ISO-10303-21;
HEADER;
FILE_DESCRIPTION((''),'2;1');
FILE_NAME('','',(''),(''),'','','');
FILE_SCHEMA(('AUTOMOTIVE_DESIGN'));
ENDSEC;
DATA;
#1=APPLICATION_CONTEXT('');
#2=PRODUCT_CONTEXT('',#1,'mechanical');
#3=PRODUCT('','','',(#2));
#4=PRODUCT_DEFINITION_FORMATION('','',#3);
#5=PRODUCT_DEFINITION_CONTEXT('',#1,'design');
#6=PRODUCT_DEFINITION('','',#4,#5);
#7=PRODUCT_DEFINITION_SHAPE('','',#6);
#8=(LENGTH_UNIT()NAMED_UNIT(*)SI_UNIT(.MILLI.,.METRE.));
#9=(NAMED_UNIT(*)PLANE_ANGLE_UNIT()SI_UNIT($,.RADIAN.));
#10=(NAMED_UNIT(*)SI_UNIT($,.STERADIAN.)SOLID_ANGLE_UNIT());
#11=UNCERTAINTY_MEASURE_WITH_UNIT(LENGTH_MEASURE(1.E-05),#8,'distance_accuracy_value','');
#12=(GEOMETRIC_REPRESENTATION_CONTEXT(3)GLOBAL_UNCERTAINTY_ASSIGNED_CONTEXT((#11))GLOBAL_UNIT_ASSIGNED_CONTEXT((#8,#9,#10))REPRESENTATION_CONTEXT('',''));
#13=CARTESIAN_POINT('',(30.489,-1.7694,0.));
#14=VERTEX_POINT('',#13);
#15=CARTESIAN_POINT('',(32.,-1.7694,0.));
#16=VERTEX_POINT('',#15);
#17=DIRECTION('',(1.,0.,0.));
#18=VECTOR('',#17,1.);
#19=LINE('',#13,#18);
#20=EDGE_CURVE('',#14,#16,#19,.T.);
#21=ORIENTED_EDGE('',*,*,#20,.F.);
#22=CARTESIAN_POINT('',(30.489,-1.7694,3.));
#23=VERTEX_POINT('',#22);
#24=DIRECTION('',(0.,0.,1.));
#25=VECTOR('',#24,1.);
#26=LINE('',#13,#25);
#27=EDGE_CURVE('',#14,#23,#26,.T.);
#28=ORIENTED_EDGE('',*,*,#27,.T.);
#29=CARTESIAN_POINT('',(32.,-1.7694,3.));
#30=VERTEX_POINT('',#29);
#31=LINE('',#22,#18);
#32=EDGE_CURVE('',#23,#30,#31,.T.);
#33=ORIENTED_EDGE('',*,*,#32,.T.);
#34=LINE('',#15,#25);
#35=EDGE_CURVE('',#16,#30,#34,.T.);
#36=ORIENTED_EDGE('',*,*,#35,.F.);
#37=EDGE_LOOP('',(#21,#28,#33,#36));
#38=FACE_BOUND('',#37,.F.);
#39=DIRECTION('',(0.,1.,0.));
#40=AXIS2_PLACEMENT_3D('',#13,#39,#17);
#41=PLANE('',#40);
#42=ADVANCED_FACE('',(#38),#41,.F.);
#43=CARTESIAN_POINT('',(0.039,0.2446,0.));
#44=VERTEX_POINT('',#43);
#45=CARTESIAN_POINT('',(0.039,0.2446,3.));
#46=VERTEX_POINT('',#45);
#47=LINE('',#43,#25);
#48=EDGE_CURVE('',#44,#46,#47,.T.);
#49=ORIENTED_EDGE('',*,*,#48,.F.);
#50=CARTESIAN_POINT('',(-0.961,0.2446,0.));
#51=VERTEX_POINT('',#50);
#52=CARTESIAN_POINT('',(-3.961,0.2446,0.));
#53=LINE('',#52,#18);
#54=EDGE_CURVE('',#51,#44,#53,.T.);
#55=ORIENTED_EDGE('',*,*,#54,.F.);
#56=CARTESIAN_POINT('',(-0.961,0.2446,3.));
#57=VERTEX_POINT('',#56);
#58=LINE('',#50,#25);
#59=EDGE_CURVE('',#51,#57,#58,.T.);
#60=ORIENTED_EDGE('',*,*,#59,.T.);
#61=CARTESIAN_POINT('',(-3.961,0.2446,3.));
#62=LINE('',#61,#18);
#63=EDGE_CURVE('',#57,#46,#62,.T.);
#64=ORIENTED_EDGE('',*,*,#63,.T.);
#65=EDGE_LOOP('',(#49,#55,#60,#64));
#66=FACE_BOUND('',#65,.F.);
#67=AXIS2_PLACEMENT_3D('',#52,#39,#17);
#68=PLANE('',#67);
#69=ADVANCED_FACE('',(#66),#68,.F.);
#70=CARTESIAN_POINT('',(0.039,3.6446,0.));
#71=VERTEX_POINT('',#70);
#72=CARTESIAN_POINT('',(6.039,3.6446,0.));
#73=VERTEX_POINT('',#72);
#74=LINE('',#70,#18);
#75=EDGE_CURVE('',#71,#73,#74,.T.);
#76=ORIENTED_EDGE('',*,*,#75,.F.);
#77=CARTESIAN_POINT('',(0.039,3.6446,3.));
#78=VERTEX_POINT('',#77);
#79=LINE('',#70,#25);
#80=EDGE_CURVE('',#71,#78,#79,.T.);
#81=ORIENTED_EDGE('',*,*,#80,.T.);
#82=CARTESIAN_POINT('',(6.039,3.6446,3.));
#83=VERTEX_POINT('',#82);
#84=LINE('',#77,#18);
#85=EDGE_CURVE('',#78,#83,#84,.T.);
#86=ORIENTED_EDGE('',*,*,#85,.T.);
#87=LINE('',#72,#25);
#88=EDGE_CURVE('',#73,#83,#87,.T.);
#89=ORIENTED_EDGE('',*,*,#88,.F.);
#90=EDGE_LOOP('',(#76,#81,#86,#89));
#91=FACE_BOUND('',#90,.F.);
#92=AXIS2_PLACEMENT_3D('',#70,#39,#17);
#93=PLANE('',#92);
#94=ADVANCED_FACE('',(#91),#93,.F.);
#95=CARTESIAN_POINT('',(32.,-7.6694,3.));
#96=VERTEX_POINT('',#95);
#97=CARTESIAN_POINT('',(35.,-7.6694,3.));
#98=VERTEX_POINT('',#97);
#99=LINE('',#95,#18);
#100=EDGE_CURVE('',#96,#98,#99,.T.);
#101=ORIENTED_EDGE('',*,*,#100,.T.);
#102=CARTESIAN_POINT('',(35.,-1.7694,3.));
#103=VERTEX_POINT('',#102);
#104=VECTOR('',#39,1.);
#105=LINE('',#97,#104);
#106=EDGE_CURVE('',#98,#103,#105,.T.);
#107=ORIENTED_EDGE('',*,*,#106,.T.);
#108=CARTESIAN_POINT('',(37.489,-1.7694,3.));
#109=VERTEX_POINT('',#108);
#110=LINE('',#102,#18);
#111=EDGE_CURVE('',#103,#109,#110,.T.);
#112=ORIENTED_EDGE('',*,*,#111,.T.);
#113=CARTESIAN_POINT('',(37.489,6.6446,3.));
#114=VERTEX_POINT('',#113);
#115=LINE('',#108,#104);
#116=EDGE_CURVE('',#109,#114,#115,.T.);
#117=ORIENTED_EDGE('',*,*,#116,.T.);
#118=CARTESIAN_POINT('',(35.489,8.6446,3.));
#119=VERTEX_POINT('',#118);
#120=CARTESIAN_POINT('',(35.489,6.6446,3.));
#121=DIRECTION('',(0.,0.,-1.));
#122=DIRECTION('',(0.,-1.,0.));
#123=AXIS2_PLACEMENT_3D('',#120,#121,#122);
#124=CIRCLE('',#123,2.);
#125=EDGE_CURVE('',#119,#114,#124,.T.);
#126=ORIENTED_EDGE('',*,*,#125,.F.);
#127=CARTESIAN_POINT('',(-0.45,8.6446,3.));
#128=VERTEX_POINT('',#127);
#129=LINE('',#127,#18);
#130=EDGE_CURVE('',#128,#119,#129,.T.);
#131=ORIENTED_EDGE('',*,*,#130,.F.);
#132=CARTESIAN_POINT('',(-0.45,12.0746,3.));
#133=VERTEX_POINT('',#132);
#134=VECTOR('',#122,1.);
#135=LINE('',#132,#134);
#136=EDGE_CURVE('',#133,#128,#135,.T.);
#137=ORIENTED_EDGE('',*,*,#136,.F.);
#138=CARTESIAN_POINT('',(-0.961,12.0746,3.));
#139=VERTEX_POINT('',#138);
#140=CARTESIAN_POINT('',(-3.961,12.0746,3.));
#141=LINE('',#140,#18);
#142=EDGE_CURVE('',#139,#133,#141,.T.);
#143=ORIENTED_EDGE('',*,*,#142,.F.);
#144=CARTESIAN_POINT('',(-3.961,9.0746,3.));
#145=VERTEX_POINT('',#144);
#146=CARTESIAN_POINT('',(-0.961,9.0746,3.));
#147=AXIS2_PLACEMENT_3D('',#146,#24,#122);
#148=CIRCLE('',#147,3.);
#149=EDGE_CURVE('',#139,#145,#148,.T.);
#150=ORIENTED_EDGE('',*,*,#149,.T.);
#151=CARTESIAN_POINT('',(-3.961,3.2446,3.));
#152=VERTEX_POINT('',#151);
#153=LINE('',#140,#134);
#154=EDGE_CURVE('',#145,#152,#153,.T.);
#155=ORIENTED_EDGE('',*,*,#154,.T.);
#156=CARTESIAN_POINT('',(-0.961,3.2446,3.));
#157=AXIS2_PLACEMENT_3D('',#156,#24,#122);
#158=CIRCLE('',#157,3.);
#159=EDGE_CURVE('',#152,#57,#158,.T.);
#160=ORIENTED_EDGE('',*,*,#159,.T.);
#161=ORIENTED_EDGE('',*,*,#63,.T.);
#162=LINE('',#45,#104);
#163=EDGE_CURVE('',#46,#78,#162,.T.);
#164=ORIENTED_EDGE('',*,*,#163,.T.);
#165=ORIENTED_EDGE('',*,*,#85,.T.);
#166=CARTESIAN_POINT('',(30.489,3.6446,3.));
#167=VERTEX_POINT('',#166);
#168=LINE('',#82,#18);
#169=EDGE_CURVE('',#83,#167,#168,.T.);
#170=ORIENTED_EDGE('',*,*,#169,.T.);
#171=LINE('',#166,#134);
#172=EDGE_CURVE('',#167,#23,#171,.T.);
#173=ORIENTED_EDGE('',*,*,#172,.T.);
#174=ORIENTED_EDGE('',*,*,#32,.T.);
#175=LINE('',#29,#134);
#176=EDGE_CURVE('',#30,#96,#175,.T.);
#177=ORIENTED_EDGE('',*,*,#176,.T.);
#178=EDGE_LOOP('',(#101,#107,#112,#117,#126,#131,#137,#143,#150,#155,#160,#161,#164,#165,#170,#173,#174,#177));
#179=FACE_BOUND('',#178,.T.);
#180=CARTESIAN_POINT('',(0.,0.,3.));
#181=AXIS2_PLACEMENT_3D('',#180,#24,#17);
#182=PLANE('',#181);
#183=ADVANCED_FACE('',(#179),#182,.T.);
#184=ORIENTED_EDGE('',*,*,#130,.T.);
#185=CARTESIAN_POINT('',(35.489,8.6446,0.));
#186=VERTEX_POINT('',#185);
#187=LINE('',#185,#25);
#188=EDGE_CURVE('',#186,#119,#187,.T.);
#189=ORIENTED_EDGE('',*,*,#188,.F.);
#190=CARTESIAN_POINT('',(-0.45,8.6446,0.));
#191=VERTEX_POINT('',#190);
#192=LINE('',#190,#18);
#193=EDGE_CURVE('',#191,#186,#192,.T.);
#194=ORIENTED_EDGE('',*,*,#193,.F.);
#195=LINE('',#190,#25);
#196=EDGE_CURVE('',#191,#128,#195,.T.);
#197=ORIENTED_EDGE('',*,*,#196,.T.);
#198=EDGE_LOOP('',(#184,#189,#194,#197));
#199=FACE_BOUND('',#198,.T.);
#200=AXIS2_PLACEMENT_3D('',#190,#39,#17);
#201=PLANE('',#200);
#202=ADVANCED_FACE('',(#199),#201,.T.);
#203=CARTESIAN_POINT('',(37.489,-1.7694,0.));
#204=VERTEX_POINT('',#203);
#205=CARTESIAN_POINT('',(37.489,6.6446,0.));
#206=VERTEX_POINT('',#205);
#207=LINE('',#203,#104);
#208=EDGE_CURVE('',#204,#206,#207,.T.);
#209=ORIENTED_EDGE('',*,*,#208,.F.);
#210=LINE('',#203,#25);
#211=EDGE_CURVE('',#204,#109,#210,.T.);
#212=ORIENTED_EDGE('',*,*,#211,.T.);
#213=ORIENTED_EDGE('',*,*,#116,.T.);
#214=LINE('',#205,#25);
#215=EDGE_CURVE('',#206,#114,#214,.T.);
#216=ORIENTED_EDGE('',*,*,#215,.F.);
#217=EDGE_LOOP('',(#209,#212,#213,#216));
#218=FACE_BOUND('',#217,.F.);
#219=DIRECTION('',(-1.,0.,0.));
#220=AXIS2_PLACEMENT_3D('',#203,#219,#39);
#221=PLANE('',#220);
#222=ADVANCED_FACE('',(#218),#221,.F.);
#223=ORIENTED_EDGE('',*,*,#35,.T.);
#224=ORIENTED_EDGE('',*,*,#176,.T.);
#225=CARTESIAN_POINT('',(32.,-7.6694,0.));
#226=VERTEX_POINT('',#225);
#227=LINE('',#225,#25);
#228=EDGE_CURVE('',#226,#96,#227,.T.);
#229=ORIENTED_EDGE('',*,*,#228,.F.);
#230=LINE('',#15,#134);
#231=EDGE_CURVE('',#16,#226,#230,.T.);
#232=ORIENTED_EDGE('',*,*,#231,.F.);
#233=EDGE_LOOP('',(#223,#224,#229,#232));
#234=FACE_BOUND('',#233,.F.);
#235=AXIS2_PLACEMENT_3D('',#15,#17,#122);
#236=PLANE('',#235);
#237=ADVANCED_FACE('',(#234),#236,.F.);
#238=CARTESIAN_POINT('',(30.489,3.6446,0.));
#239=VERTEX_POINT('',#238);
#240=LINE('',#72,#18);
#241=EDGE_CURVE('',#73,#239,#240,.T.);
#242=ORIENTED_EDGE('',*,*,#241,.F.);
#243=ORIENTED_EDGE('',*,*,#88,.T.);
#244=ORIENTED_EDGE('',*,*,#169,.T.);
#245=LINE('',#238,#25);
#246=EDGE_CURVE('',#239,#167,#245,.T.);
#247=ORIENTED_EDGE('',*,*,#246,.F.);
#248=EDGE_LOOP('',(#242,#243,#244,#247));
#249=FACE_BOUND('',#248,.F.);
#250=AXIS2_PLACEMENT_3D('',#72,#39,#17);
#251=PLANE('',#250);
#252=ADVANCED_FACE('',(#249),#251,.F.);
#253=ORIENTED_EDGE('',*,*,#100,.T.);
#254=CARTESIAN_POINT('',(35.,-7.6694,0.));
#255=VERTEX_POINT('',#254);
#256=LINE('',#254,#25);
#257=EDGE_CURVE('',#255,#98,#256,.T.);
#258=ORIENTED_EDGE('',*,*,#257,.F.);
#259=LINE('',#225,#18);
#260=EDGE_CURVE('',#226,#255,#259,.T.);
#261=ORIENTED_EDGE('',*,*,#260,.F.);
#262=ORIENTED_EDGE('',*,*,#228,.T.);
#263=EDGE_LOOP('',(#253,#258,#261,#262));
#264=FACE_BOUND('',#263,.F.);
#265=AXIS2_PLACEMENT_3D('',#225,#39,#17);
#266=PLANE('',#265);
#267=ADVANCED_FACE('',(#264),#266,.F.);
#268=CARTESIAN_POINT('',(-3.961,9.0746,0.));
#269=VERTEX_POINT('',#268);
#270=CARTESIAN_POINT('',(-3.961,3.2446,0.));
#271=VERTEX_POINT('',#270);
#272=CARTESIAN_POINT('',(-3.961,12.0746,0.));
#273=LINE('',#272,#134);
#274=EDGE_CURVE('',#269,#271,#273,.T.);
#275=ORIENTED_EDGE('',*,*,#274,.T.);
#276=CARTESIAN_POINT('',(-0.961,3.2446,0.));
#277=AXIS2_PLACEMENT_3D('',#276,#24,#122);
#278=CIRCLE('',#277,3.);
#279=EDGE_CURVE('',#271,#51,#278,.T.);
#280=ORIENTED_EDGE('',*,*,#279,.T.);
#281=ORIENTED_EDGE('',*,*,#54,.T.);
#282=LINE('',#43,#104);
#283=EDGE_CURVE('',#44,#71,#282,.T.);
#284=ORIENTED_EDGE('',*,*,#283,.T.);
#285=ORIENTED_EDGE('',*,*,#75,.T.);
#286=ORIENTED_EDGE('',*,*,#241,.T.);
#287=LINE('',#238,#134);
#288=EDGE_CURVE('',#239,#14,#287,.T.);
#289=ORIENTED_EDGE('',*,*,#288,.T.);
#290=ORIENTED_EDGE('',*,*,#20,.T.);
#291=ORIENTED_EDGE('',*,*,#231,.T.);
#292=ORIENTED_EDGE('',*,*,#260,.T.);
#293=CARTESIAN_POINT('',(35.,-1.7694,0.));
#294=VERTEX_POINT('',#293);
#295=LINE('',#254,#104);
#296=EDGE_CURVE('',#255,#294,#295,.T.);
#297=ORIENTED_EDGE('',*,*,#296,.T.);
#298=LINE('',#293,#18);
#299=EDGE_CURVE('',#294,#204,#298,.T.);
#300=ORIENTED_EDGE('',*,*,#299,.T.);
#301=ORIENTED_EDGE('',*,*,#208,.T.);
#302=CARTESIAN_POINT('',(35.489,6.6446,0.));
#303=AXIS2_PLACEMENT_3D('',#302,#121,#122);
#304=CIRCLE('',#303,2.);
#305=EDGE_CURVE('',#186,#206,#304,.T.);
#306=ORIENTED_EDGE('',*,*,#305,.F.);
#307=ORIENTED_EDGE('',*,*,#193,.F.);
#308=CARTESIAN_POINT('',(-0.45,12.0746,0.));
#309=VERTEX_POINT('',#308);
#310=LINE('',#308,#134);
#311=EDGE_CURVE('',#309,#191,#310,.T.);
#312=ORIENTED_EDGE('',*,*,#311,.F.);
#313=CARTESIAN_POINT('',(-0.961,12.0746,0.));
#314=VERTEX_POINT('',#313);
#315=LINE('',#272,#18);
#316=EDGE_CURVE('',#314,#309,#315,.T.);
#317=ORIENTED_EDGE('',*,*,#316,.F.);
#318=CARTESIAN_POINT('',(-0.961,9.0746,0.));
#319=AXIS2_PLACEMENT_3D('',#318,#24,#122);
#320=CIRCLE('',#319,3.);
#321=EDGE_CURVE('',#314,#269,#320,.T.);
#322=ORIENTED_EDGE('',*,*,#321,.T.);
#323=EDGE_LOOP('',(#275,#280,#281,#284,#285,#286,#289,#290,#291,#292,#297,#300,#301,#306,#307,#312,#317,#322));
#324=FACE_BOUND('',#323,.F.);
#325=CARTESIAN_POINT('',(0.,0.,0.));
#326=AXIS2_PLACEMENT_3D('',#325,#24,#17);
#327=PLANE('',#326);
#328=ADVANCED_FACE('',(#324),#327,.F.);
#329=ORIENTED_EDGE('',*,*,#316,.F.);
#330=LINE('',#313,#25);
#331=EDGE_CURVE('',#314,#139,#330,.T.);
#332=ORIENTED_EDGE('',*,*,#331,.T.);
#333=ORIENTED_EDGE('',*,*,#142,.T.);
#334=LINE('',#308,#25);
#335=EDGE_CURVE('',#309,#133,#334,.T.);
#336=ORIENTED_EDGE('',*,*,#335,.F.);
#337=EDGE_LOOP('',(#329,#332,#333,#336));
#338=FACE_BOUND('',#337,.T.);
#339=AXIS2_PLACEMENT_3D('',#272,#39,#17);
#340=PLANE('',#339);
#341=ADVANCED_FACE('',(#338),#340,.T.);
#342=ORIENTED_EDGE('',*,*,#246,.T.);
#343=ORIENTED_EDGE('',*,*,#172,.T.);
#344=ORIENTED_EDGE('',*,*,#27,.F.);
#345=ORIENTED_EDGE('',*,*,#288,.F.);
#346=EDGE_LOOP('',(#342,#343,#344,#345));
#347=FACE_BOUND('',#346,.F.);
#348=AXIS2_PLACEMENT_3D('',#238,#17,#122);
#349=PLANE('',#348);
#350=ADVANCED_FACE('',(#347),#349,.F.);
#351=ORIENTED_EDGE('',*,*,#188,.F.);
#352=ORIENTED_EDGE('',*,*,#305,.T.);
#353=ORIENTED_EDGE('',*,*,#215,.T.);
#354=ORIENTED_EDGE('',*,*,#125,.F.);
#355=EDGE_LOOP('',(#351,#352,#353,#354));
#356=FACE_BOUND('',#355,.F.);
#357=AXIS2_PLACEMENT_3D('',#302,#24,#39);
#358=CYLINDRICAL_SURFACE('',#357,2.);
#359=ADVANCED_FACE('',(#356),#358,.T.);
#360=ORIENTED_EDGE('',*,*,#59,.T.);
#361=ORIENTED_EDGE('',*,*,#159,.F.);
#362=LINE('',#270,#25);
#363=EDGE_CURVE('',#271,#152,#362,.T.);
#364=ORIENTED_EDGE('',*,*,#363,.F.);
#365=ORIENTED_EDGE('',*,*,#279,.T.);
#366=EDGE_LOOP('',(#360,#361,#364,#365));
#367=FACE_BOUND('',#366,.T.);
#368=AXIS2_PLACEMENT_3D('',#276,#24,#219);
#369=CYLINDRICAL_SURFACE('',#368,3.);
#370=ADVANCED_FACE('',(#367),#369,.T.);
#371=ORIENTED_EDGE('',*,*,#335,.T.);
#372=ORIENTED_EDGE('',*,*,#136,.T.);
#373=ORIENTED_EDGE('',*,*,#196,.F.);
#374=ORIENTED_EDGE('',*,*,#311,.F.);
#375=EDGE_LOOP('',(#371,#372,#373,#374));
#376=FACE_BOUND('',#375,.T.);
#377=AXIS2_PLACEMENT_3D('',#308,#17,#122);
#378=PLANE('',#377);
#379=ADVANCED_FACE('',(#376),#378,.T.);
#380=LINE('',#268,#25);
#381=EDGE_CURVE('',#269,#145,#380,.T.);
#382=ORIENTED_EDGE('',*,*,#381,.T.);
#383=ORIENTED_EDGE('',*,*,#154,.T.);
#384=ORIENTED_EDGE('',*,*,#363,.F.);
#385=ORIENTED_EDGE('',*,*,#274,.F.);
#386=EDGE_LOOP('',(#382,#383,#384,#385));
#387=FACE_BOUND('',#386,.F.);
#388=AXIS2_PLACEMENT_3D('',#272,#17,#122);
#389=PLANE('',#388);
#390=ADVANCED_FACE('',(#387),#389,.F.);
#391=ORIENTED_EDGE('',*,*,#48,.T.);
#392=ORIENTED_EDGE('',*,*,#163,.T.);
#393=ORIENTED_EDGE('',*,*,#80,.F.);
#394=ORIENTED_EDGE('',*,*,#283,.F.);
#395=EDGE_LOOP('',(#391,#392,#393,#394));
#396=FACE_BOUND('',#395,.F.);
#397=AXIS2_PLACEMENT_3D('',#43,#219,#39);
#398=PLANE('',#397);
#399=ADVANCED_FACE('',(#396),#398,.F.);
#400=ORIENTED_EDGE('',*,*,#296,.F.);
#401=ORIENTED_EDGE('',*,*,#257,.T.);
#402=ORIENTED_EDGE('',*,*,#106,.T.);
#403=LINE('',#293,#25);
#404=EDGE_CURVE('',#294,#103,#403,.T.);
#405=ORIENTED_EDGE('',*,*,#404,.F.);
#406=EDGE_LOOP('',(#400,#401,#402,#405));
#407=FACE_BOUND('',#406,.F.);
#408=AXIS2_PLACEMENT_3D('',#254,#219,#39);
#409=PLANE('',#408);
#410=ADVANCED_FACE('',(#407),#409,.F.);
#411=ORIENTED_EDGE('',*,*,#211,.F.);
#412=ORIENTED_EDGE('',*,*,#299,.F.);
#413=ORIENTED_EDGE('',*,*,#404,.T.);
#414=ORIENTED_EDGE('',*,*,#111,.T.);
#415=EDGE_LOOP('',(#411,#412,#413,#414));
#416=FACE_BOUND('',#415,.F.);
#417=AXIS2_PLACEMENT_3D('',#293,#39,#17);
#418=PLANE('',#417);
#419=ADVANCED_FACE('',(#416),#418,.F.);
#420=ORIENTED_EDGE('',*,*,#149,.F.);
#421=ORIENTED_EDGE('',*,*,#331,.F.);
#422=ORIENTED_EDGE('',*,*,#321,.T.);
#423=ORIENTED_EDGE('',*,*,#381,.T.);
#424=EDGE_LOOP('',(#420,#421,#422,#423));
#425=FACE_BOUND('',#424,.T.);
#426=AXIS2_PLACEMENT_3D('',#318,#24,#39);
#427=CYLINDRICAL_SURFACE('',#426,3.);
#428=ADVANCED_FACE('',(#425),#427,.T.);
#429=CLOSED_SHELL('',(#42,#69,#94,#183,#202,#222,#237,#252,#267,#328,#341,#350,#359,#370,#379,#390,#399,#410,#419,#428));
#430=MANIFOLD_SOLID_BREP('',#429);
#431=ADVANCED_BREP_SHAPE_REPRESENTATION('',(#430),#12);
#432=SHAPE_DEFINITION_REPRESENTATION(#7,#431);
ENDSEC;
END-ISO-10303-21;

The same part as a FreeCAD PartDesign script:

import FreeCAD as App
import Part
import Sketcher

V = App.Vector


def edges_at(feature, points):
    """Names of the edges that pass closest to the given points."""
    edges = feature.Shape.Edges
    near = lambda p: min(range(len(edges)), key=lambda i: edges[i].distToShape(Part.Vertex(*p))[0])
    return sorted({f"Edge{near(p) + 1}" for p in points})

doc = App.newDocument("Part")
body = doc.addObject("PartDesign::Body", "Body")

sketch1 = body.newObject("Sketcher::SketchObject", "Sketch")
sketch1.AttachmentSupport = (doc.getObject("XY_Plane"), [""])
sketch1.MapMode = "FlatFace"
sketch1.addGeometry(Part.LineSegment(V(-4, 0.2, 0), V(0, 0.2, 0)), False)
sketch1.addGeometry(Part.LineSegment(V(0, 0.2, 0), V(0, 3.6, 0)), False)
sketch1.addGeometry(Part.LineSegment(V(0, 3.6, 0), V(30.5, 3.6, 0)), False)
sketch1.addGeometry(Part.LineSegment(V(30.5, 3.6, 0), V(30.5, -1.8, 0)), False)
sketch1.addGeometry(Part.LineSegment(V(30.5, -1.8, 0), V(32, -1.8, 0)), False)
sketch1.addGeometry(Part.LineSegment(V(32, -1.8, 0), V(32, -7.7, 0)), False)
sketch1.addGeometry(Part.LineSegment(V(32, -7.7, 0), V(35, -7.7, 0)), False)
sketch1.addGeometry(Part.LineSegment(V(35, -7.7, 0), V(35, -1.8, 0)), False)
sketch1.addGeometry(Part.LineSegment(V(35, -1.8, 0), V(37.5, -1.8, 0)), False)
sketch1.addGeometry(Part.LineSegment(V(37.5, -1.8, 0), V(37.5, 8.6, 0)), False)
sketch1.addGeometry(Part.LineSegment(V(37.5, 8.6, 0), V(-0.5, 8.6, 0)), False)
sketch1.addGeometry(Part.LineSegment(V(-0.5, 8.6, 0), V(-0.5, 12.1, 0)), False)
sketch1.addGeometry(Part.LineSegment(V(-0.5, 12.1, 0), V(-4, 12.1, 0)), False)
sketch1.addGeometry(Part.LineSegment(V(-4, 12.1, 0), V(-4, 0.2, 0)), False)
sketch1.addConstraint(Sketcher.Constraint("Coincident", 0, 2, 1, 1))
sketch1.addConstraint(Sketcher.Constraint("Coincident", 1, 2, 2, 1))
sketch1.addConstraint(Sketcher.Constraint("Coincident", 2, 2, 3, 1))
sketch1.addConstraint(Sketcher.Constraint("Coincident", 3, 2, 4, 1))
sketch1.addConstraint(Sketcher.Constraint("Coincident", 4, 2, 5, 1))
sketch1.addConstraint(Sketcher.Constraint("Coincident", 5, 2, 6, 1))
sketch1.addConstraint(Sketcher.Constraint("Coincident", 6, 2, 7, 1))
sketch1.addConstraint(Sketcher.Constraint("Coincident", 7, 2, 8, 1))
sketch1.addConstraint(Sketcher.Constraint("Coincident", 8, 2, 9, 1))
sketch1.addConstraint(Sketcher.Constraint("Coincident", 9, 2, 10, 1))
sketch1.addConstraint(Sketcher.Constraint("Coincident", 10, 2, 11, 1))
sketch1.addConstraint(Sketcher.Constraint("Coincident", 11, 2, 12, 1))
sketch1.addConstraint(Sketcher.Constraint("Coincident", 12, 2, 13, 1))
sketch1.addConstraint(Sketcher.Constraint("Coincident", 13, 2, 0, 1))
sketch1.addConstraint(Sketcher.Constraint("Horizontal", 0))
sketch1.addConstraint(Sketcher.Constraint("Vertical", 1))
sketch1.addConstraint(Sketcher.Constraint("Horizontal", 2))
sketch1.addConstraint(Sketcher.Constraint("Vertical", 3))
sketch1.addConstraint(Sketcher.Constraint("Horizontal", 4))
sketch1.addConstraint(Sketcher.Constraint("Vertical", 5))
sketch1.addConstraint(Sketcher.Constraint("Horizontal", 6))
sketch1.addConstraint(Sketcher.Constraint("Vertical", 7))
sketch1.addConstraint(Sketcher.Constraint("Horizontal", 8))
sketch1.addConstraint(Sketcher.Constraint("Vertical", 9))
sketch1.addConstraint(Sketcher.Constraint("Horizontal", 10))
sketch1.addConstraint(Sketcher.Constraint("Vertical", 11))
sketch1.addConstraint(Sketcher.Constraint("Horizontal", 12))
sketch1.addConstraint(Sketcher.Constraint("Vertical", 13))
sketch1.addConstraint(Sketcher.Constraint("Horizontal", 4, 2, 7, 2))
sketch1.addConstraint(Sketcher.Constraint("DistanceX", 0, 1, 0, 2, 4.0))
sketch1.addConstraint(Sketcher.Constraint("DistanceX", 6, 1, 6, 2, 3.0))
sketch1.addConstraint(Sketcher.Constraint("DistanceY", 1, 1, 1, 2, 3.4))
sketch1.addConstraint(Sketcher.Constraint("DistanceY", 5, 2, 5, 1, 5.9))
sketch1.addConstraint(Sketcher.Constraint("DistanceX", 3, 2, 8, 2, 7.0))
sketch1.addConstraint(Sketcher.Constraint("DistanceY", 2, 2, 9, 2, 5.0))
sketch1.addConstraint(Sketcher.Constraint("DistanceY", 11, 1, 11, 2, 3.43))
sketch1.addConstraint(Sketcher.Constraint("DistanceX", 4, 1, 4, 2, 1.511))
sketch1.addConstraint(Sketcher.Constraint("DistanceY", 3, 2, 3, 1, 5.414))
sketch1.addConstraint(Sketcher.Constraint("DistanceX", -1, 1, 4, 2, 32.0))
sketch1.addConstraint(Sketcher.Constraint("DistanceX", 2, 1, 2, 2, 30.45))
sketch1.addConstraint(Sketcher.Constraint("DistanceX", 10, 2, 10, 1, 37.939))
sketch1.addConstraint(Sketcher.Constraint("DistanceY", -1, 1, 0, 2, 0.2446))
pad1 = body.newObject("PartDesign::Pad", "Pad")
pad1.Profile = sketch1
pad1.Length = 3
doc.recompute()

fillet = body.newObject("PartDesign::Fillet", "Fillet")
fillet.Base = (pad1, edges_at(pad1, [(37.489, 8.645, 1.5)]))
fillet.Radius = 2
doc.recompute()

fillet2 = body.newObject("PartDesign::Fillet", "Fillet001")
fillet2.Base = (fillet, edges_at(fillet, [(-3.961, 12.075, 1.5), (-3.961, 0.245, 1.5)]))
fillet2.Radius = 3

doc.recompute()
